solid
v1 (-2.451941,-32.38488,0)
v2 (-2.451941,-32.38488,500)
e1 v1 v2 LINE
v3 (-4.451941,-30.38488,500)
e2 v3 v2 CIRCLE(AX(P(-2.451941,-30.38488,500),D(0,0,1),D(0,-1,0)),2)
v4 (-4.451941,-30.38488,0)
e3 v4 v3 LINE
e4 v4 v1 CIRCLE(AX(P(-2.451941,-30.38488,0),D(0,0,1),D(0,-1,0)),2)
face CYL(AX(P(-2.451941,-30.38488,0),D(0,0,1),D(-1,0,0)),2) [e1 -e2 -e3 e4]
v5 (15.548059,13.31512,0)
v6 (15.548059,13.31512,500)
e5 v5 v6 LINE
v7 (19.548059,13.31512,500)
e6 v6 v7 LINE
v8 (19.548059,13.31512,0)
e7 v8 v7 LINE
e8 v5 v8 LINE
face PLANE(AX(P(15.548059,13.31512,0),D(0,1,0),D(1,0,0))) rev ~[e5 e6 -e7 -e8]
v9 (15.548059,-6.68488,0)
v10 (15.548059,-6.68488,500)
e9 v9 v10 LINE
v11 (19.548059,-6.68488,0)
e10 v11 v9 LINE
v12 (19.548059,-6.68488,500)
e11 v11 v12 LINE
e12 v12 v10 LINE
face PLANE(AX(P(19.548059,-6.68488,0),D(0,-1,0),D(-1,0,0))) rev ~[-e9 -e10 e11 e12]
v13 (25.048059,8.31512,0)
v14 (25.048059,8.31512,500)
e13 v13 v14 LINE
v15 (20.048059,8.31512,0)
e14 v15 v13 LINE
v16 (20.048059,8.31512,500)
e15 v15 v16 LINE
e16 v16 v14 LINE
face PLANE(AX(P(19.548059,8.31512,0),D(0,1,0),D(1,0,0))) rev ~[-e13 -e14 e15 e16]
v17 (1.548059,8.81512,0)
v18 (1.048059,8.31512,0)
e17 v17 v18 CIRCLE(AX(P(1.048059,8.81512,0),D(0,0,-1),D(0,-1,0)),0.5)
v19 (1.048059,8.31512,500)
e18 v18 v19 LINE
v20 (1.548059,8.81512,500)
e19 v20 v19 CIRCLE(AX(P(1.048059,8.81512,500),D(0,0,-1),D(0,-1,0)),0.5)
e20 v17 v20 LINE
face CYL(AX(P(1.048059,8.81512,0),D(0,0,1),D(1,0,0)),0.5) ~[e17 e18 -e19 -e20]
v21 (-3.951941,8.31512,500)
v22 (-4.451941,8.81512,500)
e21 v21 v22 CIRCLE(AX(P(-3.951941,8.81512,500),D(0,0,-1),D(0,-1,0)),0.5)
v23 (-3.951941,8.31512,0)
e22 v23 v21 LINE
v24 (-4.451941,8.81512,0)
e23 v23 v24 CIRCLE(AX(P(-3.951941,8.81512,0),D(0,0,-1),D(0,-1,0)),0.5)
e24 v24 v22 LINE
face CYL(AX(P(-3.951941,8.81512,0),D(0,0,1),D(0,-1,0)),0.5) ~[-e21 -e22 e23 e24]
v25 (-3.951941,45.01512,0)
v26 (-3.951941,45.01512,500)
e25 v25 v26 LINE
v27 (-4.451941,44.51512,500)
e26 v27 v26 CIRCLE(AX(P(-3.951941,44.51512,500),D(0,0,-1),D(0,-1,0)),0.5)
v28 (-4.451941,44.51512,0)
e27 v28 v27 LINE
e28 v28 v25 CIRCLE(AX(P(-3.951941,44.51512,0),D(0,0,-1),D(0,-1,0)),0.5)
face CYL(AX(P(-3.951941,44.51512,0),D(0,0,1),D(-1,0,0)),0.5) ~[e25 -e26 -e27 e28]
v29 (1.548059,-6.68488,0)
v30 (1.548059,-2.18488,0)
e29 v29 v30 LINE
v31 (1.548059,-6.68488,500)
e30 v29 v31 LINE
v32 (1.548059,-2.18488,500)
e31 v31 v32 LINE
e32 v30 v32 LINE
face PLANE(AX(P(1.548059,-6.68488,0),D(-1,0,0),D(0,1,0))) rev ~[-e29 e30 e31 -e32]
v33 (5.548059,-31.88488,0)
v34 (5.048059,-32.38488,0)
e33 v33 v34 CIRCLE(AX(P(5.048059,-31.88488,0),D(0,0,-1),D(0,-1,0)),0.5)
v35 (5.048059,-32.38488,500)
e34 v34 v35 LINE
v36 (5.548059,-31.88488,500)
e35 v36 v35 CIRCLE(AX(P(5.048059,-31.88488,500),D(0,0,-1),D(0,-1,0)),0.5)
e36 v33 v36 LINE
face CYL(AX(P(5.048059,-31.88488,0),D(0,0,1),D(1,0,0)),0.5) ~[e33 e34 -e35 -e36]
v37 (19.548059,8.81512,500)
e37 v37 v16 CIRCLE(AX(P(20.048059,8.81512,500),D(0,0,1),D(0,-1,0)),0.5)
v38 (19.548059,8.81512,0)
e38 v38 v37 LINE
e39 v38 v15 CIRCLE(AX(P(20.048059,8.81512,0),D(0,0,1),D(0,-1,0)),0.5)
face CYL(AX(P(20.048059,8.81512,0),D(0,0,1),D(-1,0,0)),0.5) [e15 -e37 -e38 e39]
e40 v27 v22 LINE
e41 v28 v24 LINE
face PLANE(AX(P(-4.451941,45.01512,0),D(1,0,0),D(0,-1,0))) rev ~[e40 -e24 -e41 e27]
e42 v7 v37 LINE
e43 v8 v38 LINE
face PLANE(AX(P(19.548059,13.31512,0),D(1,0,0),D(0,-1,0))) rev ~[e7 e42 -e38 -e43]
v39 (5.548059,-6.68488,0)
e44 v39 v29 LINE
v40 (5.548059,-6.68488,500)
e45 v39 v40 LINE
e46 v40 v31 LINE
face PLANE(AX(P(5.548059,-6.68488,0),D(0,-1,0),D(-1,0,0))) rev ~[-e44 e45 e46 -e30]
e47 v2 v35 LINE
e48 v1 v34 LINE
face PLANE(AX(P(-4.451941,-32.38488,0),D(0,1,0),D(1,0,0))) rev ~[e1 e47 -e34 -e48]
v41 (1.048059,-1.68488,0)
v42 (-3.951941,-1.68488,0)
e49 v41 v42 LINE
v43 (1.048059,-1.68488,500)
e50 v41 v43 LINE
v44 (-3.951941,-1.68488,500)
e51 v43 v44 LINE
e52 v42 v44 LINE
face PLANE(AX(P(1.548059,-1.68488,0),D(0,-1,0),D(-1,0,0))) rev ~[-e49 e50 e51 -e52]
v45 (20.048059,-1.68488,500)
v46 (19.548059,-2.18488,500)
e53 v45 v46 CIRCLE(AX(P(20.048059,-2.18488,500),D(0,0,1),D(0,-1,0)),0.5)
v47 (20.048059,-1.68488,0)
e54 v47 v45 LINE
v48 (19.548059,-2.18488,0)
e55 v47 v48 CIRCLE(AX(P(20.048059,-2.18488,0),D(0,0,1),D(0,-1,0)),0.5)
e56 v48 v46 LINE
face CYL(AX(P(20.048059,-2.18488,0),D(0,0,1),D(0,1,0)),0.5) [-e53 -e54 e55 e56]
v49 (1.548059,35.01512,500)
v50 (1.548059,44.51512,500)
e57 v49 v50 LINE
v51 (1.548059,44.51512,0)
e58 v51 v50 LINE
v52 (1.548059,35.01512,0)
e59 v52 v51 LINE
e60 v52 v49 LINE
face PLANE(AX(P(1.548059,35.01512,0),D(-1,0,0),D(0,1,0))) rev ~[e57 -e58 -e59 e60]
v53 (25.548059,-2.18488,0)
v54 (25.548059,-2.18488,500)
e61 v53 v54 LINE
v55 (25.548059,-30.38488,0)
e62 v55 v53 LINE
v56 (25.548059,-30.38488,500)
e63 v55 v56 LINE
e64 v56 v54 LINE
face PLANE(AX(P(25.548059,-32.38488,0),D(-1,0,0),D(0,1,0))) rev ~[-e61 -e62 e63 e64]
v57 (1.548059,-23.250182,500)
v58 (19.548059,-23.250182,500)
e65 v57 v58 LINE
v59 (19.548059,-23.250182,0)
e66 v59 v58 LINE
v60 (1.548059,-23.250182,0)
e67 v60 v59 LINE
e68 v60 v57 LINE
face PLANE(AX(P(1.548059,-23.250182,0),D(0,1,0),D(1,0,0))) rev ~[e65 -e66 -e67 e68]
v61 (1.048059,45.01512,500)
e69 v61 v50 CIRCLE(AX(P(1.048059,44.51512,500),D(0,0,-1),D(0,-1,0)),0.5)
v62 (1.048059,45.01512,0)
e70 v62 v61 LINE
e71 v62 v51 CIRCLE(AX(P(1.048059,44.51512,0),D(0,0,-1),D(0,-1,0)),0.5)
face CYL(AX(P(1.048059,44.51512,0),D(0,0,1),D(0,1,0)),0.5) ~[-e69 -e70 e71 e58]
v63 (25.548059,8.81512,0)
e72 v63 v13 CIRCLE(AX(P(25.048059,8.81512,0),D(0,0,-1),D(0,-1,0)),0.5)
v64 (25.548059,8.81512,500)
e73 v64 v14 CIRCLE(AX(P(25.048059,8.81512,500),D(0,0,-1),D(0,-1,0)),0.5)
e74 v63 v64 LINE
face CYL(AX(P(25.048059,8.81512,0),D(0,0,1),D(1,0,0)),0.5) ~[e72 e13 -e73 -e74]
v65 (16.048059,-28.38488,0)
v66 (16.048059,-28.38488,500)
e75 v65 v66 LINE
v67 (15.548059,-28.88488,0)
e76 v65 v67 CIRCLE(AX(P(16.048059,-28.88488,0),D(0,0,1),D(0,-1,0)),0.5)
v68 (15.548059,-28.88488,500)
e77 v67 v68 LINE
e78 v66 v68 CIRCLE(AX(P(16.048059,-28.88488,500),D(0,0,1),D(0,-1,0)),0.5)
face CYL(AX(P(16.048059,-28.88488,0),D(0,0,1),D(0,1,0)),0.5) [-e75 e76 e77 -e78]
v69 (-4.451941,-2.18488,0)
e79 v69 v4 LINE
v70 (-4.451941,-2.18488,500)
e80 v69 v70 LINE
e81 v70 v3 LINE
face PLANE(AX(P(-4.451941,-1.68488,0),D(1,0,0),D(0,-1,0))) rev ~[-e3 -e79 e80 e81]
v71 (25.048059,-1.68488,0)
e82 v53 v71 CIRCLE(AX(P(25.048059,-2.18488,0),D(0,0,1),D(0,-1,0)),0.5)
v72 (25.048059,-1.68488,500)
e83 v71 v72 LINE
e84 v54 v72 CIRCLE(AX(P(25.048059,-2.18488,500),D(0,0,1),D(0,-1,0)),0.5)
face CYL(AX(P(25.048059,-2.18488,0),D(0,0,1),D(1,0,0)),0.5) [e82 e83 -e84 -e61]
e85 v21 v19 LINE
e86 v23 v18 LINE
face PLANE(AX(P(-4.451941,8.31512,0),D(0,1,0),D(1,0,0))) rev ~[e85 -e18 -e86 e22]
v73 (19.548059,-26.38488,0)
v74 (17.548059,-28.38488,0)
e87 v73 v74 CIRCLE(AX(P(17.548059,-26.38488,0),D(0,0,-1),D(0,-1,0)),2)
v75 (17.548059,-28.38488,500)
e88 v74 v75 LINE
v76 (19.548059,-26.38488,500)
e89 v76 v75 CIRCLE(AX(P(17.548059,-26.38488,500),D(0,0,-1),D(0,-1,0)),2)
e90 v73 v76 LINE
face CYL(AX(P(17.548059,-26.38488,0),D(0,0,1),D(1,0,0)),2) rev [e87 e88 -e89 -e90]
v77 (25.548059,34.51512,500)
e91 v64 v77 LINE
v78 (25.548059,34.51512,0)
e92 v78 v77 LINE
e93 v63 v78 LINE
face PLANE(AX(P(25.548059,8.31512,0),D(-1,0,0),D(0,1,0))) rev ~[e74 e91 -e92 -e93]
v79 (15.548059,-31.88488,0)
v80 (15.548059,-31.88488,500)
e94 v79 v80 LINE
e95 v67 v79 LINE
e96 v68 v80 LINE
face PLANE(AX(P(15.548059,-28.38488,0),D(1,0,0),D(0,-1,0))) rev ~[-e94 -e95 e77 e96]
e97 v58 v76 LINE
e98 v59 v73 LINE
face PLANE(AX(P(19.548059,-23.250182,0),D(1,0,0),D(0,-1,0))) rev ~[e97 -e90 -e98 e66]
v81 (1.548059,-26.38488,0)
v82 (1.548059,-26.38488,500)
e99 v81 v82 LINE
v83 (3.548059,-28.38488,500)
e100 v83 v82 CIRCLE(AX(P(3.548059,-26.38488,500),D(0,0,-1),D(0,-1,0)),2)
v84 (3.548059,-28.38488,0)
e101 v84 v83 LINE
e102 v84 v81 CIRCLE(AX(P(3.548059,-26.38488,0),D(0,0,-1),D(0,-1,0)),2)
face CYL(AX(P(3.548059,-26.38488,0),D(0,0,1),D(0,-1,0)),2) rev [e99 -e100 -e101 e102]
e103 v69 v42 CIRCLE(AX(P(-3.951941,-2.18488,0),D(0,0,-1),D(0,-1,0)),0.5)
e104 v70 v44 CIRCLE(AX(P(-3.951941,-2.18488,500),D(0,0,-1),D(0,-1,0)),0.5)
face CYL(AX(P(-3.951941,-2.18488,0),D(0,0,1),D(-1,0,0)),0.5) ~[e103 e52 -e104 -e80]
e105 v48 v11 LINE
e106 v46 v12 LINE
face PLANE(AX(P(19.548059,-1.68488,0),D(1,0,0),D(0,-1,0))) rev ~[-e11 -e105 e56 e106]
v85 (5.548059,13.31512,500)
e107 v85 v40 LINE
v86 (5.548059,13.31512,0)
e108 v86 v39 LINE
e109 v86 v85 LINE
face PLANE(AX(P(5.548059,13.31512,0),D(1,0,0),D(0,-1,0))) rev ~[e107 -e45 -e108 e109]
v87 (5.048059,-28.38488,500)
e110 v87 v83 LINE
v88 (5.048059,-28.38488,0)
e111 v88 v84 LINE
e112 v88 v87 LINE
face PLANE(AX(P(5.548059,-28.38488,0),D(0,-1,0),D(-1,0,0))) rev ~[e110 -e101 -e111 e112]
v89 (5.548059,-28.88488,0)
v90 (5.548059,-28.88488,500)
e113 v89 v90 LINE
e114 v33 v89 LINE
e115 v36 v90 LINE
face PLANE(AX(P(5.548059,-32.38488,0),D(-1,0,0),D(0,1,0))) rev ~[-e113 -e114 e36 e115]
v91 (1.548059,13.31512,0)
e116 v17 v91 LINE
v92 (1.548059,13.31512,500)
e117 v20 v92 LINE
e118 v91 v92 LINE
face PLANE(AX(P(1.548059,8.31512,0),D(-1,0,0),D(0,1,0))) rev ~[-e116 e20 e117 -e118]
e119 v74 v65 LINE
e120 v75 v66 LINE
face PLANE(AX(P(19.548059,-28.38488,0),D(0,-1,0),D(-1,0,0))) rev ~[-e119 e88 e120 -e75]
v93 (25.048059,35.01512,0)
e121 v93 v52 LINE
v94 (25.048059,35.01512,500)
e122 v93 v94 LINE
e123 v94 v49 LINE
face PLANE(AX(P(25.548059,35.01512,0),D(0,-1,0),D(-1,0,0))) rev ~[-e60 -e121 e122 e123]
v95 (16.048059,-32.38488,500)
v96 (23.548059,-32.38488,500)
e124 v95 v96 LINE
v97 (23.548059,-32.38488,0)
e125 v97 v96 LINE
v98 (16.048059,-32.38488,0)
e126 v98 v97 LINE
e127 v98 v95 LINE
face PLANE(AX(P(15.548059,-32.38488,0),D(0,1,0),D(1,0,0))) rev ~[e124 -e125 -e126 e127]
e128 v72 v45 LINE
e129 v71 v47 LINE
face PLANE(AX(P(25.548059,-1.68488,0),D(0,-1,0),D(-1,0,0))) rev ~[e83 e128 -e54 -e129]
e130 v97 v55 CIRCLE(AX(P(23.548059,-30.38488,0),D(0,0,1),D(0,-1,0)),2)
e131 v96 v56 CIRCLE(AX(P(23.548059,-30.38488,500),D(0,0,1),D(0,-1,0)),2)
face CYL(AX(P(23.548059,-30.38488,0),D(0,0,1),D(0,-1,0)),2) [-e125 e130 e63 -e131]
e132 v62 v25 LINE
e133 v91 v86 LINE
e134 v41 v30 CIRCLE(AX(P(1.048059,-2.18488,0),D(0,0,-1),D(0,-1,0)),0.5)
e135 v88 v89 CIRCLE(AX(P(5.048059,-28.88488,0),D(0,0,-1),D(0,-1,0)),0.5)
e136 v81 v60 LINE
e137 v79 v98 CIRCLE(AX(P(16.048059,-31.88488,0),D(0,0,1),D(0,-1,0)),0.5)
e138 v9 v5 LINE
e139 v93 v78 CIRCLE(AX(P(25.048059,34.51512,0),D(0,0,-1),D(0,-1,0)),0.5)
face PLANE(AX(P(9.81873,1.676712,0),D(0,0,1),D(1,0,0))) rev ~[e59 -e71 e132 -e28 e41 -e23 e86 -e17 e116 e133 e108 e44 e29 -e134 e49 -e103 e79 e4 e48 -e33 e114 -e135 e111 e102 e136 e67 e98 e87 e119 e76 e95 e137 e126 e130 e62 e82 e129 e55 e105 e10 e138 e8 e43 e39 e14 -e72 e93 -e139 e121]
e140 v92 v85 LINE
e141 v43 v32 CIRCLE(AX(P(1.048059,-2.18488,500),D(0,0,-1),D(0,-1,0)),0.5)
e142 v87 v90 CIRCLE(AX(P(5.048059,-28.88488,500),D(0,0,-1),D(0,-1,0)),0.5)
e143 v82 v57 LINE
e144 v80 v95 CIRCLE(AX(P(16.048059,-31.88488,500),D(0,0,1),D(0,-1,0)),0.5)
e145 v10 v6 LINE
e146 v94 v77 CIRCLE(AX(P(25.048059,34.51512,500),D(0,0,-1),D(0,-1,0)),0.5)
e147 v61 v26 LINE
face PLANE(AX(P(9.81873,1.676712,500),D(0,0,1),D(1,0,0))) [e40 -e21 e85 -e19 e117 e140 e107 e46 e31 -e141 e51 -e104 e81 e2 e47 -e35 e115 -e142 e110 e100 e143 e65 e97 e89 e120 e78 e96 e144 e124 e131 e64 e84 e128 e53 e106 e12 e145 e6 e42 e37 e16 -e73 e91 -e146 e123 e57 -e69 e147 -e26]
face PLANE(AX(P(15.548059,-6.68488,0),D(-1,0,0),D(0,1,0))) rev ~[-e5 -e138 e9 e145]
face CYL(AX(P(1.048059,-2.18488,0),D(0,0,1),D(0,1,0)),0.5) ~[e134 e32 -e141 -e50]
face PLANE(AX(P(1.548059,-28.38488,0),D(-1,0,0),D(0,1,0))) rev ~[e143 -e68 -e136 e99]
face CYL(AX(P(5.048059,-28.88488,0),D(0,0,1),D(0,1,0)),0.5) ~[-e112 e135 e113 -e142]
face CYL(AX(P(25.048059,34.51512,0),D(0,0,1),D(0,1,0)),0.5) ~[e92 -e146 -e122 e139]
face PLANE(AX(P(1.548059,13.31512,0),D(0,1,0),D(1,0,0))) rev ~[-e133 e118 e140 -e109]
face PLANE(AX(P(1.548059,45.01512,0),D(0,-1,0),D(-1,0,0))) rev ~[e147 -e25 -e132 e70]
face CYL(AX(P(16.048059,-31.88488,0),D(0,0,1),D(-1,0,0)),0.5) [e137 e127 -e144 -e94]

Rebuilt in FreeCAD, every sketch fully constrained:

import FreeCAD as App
import Part
import Sketcher
from FreeCAD import Vector


def edges_at(feature, points):
    """Names of the edges that pass closest to the given points."""
    edges = feature.Shape.Edges
    near = lambda p: min(range(len(edges)), key=lambda i: edges[i].distToShape(Part.Vertex(*p))[0])
    return sorted({f"Edge{near(p) + 1}" for p in points})

doc = App.newDocument("Part")
body = doc.addObject("PartDesign::Body", "Body")

sketch1 = body.newObject("Sketcher::SketchObject", "Sketch")
sketch1.AttachmentSupport = (doc.getObject("XY_Plane"), [""])
sketch1.MapMode = "FlatFace"
sketch1.addGeometry([
    Part.LineSegment(Vector(-4.5, 8.3, 0), Vector(1.5, 8.3, 0)),
    Part.LineSegment(Vector(1.5, 8.3, 0), Vector(1.5, 13.3, 0)),
    Part.LineSegment(Vector(1.5, 13.3, 0), Vector(5.5, 13.3, 0)),
    Part.LineSegment(Vector(5.5, 13.3, 0), Vector(5.5, -6.7, 0)),
    Part.LineSegment(Vector(5.5, -6.7, 0), Vector(1.5, -6.7, 0)),
    Part.LineSegment(Vector(1.5, -6.7, 0), Vector(1.5, -1.7, 0)),
    Part.LineSegment(Vector(1.5, -1.7, 0), Vector(-4.5, -1.7, 0)),
    Part.LineSegment(Vector(-4.5, -1.7, 0), Vector(-4.5, -32.4, 0)),
    Part.LineSegment(Vector(-4.5, -32.4, 0), Vector(5.5, -32.4, 0)),
    Part.LineSegment(Vector(5.5, -32.4, 0), Vector(5.5, -28.4, 0)),
    Part.LineSegment(Vector(5.5, -28.4, 0), Vector(1.5, -28.4, 0)),
    Part.LineSegment(Vector(1.5, -28.4, 0), Vector(1.5, -23.3, 0)),
    Part.LineSegment(Vector(1.5, -23.3, 0), Vector(19.5, -23.3, 0)),
    Part.LineSegment(Vector(19.5, -23.3, 0), Vector(19.5, -28.4, 0)),
    Part.LineSegment(Vector(19.5, -28.4, 0), Vector(15.5, -28.4, 0)),
    Part.LineSegment(Vector(15.5, -28.4, 0), Vector(15.5, -32.4, 0)),
    Part.LineSegment(Vector(15.5, -32.4, 0), Vector(25.5, -32.4, 0)),
    Part.LineSegment(Vector(25.5, -32.4, 0), Vector(25.5, -1.7, 0)),
    Part.LineSegment(Vector(25.5, -1.7, 0), Vector(19.5, -1.7, 0)),
    Part.LineSegment(Vector(19.5, -1.7, 0), Vector(19.5, -6.7, 0)),
    Part.LineSegment(Vector(19.5, -6.7, 0), Vector(15.5, -6.7, 0)),
    Part.LineSegment(Vector(15.5, -6.7, 0), Vector(15.5, 13.3, 0)),
    Part.LineSegment(Vector(15.5, 13.3, 0), Vector(19.5, 13.3, 0)),
    Part.LineSegment(Vector(19.5, 13.3, 0), Vector(19.5, 8.3, 0)),
    Part.LineSegment(Vector(19.5, 8.3, 0), Vector(25.5, 8.3, 0)),
    Part.LineSegment(Vector(25.5, 8.3, 0), Vector(25.5, 35, 0)),
    Part.LineSegment(Vector(25.5, 35, 0), Vector(1.5, 35, 0)),
    Part.LineSegment(Vector(1.5, 35, 0), Vector(1.5, 45, 0)),
    Part.LineSegment(Vector(1.5, 45, 0), Vector(-4.5, 45, 0)),
    Part.LineSegment(Vector(-4.5, 45, 0), Vector(-4.5, 8.3, 0)),
], False)
sketch1.addConstraint([
    Sketcher.Constraint("Coincident", 0, 2, 1, 1),
    Sketcher.Constraint("Coincident", 1, 2, 2, 1),
    Sketcher.Constraint("Coincident", 2, 2, 3, 1),
    Sketcher.Constraint("Coincident", 3, 2, 4, 1),
    Sketcher.Constraint("Coincident", 4, 2, 5, 1),
    Sketcher.Constraint("Coincident", 5, 2, 6, 1),
    Sketcher.Constraint("Coincident", 6, 2, 7, 1),
    Sketcher.Constraint("Coincident", 7, 2, 8, 1),
    Sketcher.Constraint("Coincident", 8, 2, 9, 1),
    Sketcher.Constraint("Coincident", 9, 2, 10, 1),
    Sketcher.Constraint("Coincident", 10, 2, 11, 1),
    Sketcher.Constraint("Coincident", 11, 2, 12, 1),
    Sketcher.Constraint("Coincident", 12, 2, 13, 1),
    Sketcher.Constraint("Coincident", 13, 2, 14, 1),
    Sketcher.Constraint("Coincident", 14, 2, 15, 1),
    Sketcher.Constraint("Coincident", 15, 2, 16, 1),
    Sketcher.Constraint("Coincident", 16, 2, 17, 1),
    Sketcher.Constraint("Coincident", 17, 2, 18, 1),
    Sketcher.Constraint("Coincident", 18, 2, 19, 1),
    Sketcher.Constraint("Coincident", 19, 2, 20, 1),
    Sketcher.Constraint("Coincident", 20, 2, 21, 1),
    Sketcher.Constraint("Coincident", 21, 2, 22, 1),
    Sketcher.Constraint("Coincident", 22, 2, 23, 1),
    Sketcher.Constraint("Coincident", 23, 2, 24, 1),
    Sketcher.Constraint("Coincident", 24, 2, 25, 1),
    Sketcher.Constraint("Coincident", 25, 2, 26, 1),
    Sketcher.Constraint("Coincident", 26, 2, 27, 1),
    Sketcher.Constraint("Coincident", 27, 2, 28, 1),
    Sketcher.Constraint("Coincident", 28, 2, 29, 1),
    Sketcher.Constraint("Coincident", 29, 2, 0, 1),
    Sketcher.Constraint("Horizontal", 0),
    Sketcher.Constraint("Vertical", 1),
    Sketcher.Constraint("Horizontal", 2),
    Sketcher.Constraint("Vertical", 3),
    Sketcher.Constraint("Horizontal", 4),
    Sketcher.Constraint("Vertical", 5),
    Sketcher.Constraint("Horizontal", 6),
    Sketcher.Constraint("Vertical", 7),
    Sketcher.Constraint("Horizontal", 8),
    Sketcher.Constraint("Vertical", 9),
    Sketcher.Constraint("Horizontal", 10),
    Sketcher.Constraint("Vertical", 11),
    Sketcher.Constraint("Horizontal", 12),
    Sketcher.Constraint("Vertical", 13),
    Sketcher.Constraint("Horizontal", 14),
    Sketcher.Constraint("Vertical", 15),
    Sketcher.Constraint("Horizontal", 16),
    Sketcher.Constraint("Vertical", 17),
    Sketcher.Constraint("Horizontal", 18),
    Sketcher.Constraint("Vertical", 19),
    Sketcher.Constraint("Horizontal", 20),
    Sketcher.Constraint("Vertical", 21),
    Sketcher.Constraint("Horizontal", 22),
    Sketcher.Constraint("Vertical", 23),
    Sketcher.Constraint("Horizontal", 24),
    Sketcher.Constraint("Vertical", 25),
    Sketcher.Constraint("Horizontal", 26),
    Sketcher.Constraint("Vertical", 27),
    Sketcher.Constraint("Horizontal", 28),
    Sketcher.Constraint("Vertical", 29),
    Sketcher.Constraint("Horizontal", 10, 2, 13, 2),
    Sketcher.Constraint("Horizontal", 8, 2, 15, 2),
    Sketcher.Constraint("Horizontal", 6, 2, 17, 2),
    Sketcher.Constraint("Horizontal", 4, 2, 19, 2),
    Sketcher.Constraint("Horizontal", 2, 2, 21, 2),
    Sketcher.Constraint("Horizontal", 0, 2, 23, 2),
    Sketcher.Constraint("Vertical", 1, 2, 4, 2),
    Sketcher.Constraint("Vertical", 3, 2, 8, 2),
    Sketcher.Constraint("Vertical", 5, 2, 10, 2),
    Sketcher.Constraint("Vertical", 13, 2, 18, 2),
    Sketcher.Constraint("Vertical", 15, 2, 20, 2),
    Sketcher.Constraint("Vertical", 19, 2, 22, 2),
    Sketcher.Constraint("Vertical", 17, 2, 24, 2),
    Sketcher.Constraint("Vertical", 11, 2, 26, 2),
    Sketcher.Constraint("Vertical", 7, 2, 28, 2),
    Sketcher.Constraint("Equal", 10, 14),
    Sketcher.Constraint("Equal", 8, 16),
    Sketcher.Constraint("Equal", 1, 5),
    Sketcher.Constraint("Equal", 22, 9),
    Sketcher.Constraint("Equal", 16, 27),
    Sketcher.Constraint("DistanceX", 0, 1, 0, 2, 6.0),
    Sketcher.Constraint("DistanceX", 2, 1, 2, 2, 4.0),
    Sketcher.Constraint("DistanceX", 12, 1, 12, 2, 18.0),
    Sketcher.Constraint("DistanceY", 1, 1, 1, 2, 5.0),
    Sketcher.Constraint("DistanceY", 3, 2, 3, 1, 20.0),
    Sketcher.Constraint("DistanceY", 7, 2, 7, 1, 30.7),
    Sketcher.Constraint("DistanceY", 25, 1, 25, 2, 26.7),
    Sketcher.Constraint("DistanceY", 11, 1, 11, 2, 5.134698),
    Sketcher.Constraint("DistanceX", -1, 1, 0, 2, 1.548059),
    Sketcher.Constraint("DistanceY", -1, 1, 0, 2, 8.31512),
])
pad1 = body.newObject("PartDesign::Pad", "Pad")
pad1.Profile = sketch1
pad1.Length = 500
doc.recompute()

fillet = body.newObject("PartDesign::Fillet", "Fillet")
fillet.Base = (pad1, edges_at(pad1, [(25.548, -32.385, 250), (-4.452, -32.385, 250)]))
fillet.Radius = 2
doc.recompute()

fillet2 = body.newObject("PartDesign::Fillet", "Fillet001")
fillet2.Base = (fillet, edges_at(fillet, [(19.548, -28.385, 250), (1.548, -28.385, 250)]))
fillet2.Radius = 2
doc.recompute()

fillet3 = body.newObject("PartDesign::Fillet", "Fillet002")
fillet3.Base = (fillet2, edges_at(fillet2, [
    (19.548, -1.685, 250),
    (25.548, -1.685, 250),
    (15.548, -32.385, 250),
    (15.548, -28.385, 250),
    (5.548, -28.385, 250),
    (5.548, -32.385, 250),
    (-4.452, -1.685, 250),
    (1.548, -1.685, 250),
    (1.548, 8.315, 250),
    (-4.452, 8.315, 250),
    (-4.452, 45.015, 250),
    (1.548, 45.015, 250),
    (25.548, 35.015, 250),
    (25.548, 8.315, 250),
    (19.548, 8.315, 250),
]))
fillet3.Radius = 0.5

doc.recompute()
